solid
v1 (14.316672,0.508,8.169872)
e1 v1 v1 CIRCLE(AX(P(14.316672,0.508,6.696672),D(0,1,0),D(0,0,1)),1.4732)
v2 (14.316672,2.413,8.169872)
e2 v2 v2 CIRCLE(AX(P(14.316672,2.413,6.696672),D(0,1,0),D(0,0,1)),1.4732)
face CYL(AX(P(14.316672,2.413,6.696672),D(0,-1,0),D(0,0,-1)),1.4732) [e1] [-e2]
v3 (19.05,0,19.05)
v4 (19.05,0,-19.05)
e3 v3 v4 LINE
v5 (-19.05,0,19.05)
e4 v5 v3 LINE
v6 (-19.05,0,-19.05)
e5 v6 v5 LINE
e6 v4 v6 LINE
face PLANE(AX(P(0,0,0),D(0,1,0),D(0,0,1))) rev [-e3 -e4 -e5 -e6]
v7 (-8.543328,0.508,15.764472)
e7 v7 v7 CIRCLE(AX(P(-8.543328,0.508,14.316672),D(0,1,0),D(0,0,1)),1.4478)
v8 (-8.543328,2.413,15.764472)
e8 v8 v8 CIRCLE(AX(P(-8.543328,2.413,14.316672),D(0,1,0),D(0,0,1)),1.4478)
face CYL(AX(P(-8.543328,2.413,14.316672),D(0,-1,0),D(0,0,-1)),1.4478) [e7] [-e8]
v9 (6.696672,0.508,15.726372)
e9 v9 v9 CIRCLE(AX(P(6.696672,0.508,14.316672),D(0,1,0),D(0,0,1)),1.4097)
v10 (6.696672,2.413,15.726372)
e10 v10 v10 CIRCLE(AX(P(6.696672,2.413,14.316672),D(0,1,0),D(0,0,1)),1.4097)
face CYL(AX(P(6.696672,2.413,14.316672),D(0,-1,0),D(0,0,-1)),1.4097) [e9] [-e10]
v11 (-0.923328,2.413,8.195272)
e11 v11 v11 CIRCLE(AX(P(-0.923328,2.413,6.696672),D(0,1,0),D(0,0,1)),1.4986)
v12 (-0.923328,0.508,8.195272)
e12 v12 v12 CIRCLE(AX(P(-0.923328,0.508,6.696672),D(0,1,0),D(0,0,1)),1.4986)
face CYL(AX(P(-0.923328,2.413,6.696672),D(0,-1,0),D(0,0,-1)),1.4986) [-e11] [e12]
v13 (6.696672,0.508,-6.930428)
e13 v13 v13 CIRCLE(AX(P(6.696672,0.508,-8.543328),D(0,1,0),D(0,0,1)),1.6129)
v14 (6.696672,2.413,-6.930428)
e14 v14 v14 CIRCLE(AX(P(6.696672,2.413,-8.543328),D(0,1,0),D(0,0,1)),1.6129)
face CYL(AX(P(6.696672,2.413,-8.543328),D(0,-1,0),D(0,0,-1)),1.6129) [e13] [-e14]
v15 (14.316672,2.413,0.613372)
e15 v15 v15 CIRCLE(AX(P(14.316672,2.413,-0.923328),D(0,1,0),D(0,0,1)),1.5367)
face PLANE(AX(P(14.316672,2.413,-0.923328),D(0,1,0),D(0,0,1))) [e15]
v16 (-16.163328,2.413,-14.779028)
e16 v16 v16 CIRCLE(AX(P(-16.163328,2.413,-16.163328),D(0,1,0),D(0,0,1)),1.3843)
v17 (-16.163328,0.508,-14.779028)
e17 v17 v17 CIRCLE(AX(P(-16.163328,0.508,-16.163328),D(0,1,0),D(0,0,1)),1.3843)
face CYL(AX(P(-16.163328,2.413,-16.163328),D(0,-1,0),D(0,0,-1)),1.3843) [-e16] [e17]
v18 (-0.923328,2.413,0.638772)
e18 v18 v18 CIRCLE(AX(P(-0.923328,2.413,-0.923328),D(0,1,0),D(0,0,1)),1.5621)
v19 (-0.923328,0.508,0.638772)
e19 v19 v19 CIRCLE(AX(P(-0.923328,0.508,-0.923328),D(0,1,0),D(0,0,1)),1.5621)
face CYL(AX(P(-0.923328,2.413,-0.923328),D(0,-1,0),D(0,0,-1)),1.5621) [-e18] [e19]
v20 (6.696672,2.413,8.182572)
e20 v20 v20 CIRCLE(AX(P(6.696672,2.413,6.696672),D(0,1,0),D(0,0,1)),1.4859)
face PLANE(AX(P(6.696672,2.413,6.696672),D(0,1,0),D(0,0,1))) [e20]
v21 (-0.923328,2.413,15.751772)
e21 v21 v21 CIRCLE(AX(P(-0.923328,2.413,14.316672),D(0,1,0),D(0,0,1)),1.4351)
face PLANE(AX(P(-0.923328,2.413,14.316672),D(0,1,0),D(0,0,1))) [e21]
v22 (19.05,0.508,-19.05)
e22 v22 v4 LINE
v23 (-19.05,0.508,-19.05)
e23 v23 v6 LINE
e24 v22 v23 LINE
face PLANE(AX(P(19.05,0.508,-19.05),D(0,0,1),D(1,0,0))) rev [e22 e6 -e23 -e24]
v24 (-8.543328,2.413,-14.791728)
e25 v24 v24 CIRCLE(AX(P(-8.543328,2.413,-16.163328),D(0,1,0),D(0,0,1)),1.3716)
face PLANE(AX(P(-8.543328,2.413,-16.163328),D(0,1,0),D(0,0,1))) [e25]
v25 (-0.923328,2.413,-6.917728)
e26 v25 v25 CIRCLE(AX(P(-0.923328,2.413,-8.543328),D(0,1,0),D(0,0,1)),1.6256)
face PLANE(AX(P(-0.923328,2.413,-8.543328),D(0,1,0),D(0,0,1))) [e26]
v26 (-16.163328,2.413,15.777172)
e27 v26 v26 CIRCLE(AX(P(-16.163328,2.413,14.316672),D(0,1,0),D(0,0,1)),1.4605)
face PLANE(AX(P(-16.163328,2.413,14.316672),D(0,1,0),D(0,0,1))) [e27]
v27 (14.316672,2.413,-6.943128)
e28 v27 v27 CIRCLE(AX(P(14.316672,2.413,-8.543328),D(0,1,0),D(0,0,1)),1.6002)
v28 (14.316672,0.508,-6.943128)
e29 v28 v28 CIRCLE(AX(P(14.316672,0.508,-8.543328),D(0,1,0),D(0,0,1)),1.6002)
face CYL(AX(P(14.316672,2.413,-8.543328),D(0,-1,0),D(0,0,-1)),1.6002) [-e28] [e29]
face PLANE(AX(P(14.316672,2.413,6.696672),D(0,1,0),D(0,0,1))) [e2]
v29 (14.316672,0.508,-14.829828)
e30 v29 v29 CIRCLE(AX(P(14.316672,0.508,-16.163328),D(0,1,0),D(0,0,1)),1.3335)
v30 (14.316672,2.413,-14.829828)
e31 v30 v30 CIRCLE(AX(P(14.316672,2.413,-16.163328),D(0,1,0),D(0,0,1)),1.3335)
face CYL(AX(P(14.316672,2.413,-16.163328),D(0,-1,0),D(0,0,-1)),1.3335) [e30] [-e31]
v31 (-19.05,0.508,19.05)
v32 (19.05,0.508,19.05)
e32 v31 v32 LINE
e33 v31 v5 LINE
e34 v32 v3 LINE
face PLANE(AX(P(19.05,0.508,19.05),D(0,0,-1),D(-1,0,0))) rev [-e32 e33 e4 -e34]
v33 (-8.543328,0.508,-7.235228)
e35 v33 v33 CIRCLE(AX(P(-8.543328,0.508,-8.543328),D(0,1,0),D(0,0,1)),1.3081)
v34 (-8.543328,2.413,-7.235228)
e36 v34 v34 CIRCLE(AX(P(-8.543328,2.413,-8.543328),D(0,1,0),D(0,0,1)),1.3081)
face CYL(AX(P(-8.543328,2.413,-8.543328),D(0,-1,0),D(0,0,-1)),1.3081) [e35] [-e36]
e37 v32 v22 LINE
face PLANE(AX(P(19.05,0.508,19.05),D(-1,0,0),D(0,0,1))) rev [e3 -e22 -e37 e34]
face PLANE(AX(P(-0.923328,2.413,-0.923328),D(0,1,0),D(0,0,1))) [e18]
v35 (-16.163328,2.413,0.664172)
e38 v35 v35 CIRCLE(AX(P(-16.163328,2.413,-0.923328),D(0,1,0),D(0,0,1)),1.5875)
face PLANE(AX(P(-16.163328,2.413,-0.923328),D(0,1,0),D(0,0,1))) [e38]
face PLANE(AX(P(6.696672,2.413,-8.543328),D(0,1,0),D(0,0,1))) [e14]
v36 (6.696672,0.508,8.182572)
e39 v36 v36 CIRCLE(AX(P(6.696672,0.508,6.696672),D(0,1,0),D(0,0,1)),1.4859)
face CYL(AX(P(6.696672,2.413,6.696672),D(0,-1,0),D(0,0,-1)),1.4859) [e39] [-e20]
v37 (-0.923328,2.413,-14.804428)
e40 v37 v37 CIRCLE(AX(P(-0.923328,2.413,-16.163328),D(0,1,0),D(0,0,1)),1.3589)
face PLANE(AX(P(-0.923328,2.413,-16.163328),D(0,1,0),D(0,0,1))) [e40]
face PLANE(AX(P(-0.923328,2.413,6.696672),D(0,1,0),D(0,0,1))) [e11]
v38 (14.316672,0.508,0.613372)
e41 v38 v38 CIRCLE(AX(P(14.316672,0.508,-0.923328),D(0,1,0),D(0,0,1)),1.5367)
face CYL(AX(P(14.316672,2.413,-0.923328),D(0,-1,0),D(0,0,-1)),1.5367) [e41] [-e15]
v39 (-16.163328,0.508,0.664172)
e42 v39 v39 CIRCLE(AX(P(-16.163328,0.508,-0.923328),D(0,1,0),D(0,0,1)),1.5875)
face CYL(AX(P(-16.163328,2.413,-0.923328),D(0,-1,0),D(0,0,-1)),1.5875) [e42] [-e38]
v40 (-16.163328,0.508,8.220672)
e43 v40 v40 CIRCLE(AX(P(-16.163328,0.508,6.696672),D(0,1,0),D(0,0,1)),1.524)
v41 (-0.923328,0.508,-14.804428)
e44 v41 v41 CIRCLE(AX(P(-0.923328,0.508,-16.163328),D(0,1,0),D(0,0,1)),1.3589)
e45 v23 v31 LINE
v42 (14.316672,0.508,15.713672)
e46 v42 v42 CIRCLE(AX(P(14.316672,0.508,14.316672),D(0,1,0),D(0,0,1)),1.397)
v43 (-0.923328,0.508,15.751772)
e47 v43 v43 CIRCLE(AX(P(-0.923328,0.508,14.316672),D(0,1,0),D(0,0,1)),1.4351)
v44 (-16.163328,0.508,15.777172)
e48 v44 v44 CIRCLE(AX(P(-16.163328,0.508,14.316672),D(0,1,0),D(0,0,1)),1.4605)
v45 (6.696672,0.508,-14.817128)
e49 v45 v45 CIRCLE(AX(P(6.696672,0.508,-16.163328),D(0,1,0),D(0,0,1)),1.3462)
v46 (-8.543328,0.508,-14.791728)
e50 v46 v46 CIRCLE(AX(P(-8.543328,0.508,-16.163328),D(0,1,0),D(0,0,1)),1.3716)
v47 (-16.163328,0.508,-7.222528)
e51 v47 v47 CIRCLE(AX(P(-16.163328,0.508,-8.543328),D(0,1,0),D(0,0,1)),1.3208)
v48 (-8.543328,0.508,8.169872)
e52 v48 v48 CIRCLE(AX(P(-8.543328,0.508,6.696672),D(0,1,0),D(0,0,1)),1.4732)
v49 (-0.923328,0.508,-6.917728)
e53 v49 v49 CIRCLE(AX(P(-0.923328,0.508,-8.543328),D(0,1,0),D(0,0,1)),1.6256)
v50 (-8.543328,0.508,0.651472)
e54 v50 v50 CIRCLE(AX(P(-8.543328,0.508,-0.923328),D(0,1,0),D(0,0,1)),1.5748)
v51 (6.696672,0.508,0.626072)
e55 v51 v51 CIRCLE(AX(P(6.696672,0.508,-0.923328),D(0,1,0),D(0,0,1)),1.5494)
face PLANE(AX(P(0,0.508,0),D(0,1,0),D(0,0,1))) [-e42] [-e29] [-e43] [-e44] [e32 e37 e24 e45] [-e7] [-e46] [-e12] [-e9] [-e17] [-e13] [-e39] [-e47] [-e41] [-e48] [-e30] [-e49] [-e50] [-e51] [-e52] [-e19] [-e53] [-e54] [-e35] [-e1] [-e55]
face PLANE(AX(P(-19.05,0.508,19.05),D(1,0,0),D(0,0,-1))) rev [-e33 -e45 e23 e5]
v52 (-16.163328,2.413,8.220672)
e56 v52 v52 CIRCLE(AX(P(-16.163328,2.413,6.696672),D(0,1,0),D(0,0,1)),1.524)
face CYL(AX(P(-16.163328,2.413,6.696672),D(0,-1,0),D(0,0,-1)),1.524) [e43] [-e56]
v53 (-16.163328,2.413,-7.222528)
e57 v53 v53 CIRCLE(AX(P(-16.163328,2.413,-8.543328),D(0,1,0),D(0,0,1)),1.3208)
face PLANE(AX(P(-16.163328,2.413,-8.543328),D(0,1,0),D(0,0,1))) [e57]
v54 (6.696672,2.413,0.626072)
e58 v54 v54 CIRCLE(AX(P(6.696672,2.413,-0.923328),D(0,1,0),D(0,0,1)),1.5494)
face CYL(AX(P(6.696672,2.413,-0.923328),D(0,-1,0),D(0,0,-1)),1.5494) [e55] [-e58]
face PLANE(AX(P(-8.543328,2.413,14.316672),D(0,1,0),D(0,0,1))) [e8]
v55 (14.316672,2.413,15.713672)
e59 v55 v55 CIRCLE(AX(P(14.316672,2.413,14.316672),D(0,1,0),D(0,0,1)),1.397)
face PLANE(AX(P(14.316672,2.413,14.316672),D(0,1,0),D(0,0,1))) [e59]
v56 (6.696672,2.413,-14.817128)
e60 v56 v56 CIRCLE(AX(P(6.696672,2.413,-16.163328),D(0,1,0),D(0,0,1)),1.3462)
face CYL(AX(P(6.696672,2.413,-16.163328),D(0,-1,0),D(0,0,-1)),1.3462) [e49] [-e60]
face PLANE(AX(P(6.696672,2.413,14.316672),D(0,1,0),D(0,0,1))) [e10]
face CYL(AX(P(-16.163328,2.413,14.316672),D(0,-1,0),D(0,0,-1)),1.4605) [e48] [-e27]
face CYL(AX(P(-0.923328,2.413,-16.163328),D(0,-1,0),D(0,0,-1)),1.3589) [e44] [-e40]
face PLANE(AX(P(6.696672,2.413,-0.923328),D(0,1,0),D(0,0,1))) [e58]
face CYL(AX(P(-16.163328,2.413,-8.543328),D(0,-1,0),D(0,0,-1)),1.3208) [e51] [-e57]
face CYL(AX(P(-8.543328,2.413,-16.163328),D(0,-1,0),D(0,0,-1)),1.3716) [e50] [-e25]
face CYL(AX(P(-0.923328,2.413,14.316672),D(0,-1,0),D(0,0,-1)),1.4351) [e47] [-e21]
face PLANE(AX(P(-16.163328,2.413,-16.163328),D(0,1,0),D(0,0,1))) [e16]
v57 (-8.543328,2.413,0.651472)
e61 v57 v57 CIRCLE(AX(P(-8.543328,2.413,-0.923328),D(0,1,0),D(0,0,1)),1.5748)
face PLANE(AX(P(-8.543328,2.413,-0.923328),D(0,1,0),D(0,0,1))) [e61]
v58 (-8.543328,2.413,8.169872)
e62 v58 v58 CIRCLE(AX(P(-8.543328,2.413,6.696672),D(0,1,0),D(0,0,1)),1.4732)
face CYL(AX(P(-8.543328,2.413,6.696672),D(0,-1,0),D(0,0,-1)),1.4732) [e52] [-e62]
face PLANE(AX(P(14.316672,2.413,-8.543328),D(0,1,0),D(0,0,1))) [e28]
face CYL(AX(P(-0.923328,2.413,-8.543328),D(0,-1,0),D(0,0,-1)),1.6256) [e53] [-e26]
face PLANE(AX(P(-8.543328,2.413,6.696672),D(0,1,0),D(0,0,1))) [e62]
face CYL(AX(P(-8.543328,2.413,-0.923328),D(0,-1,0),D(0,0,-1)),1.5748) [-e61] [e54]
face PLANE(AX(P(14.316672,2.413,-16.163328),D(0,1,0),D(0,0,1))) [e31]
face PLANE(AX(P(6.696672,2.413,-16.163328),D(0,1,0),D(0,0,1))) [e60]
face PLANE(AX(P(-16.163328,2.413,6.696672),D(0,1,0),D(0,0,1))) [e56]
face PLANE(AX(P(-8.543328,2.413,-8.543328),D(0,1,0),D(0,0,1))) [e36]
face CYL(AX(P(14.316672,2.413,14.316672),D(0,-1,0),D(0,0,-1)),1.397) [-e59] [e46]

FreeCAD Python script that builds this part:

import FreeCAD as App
import Part
import Sketcher
from FreeCAD import Vector
Q = App.Units.Quantity

doc = App.newDocument("Part")
body = doc.addObject("PartDesign::Body", "Body")

sketch1 = body.newObject("Sketcher::SketchObject", "Sketch")
sketch1.AttachmentSupport = (doc.getObject("XZ_Plane"), [""])
sketch1.MapMode = "FlatFace"
sketch1.addGeometry(Part.LineSegment(Vector(-19, -19, 0), Vector(-19, 19, 0)), False)
sketch1.addGeometry(Part.LineSegment(Vector(-19, 19, 0), Vector(19, 19, 0)), False)
sketch1.addGeometry(Part.LineSegment(Vector(19, 19, 0), Vector(19, -19, 0)), False)
sketch1.addGeometry(Part.LineSegment(Vector(19, -19, 0), Vector(-19, -19, 0)), False)
sketch1.addConstraint(Sketcher.Constraint("Coincident", 0, 2, 1, 1))
sketch1.addConstraint(Sketcher.Constraint("Coincident", 1, 2, 2, 1))
sketch1.addConstraint(Sketcher.Constraint("Coincident", 2, 2, 3, 1))
sketch1.addConstraint(Sketcher.Constraint("Coincident", 3, 2, 0, 1))
sketch1.addConstraint(Sketcher.Constraint("Vertical", 0))
sketch1.addConstraint(Sketcher.Constraint("Horizontal", 1))
sketch1.addConstraint(Sketcher.Constraint("Vertical", 2))
sketch1.addConstraint(Sketcher.Constraint("Horizontal", 3))
sketch1.addConstraint(Sketcher.Constraint("Symmetric", 0, 2, 2, 2, -1, 1))
sketch1.addConstraint(Sketcher.Constraint("Equal", 3, 0))
sketch1.addConstraint(Sketcher.Constraint("DistanceX", 1, 1, 1, 2, Q("1.5 in")))
pad1 = body.newObject("PartDesign::Pad", "Pad")
pad1.Profile = sketch1
pad1.Length = Q("0.02 in")
pad1.Reversed = True

sketch2 = body.newObject("Sketcher::SketchObject", "Sketch001")
sketch2.AttachmentSupport = (doc.getObject("XZ_Plane"), [""])
sketch2.MapMode = "FlatFace"
sketch2.AttachmentOffset = App.Placement(Vector(0, 0, -0.02 * 25.4), App.Rotation())
sketch2.addGeometry(Part.Circle(Vector(-16.2, -16.2, 0), Vector(0, 0, 1), 1.4), False)
sketch2.addGeometry(Part.Circle(Vector(-8.5, -16.2, 0), Vector(0, 0, 1), 1.4), False)
sketch2.addGeometry(Part.Circle(Vector(-0.9, -16.2, 0), Vector(0, 0, 1), 1.4), False)
sketch2.addGeometry(Part.Circle(Vector(6.7, -16.2, 0), Vector(0, 0, 1), 1.3), False)
sketch2.addGeometry(Part.Circle(Vector(14.3, -16.2, 0), Vector(0, 0, 1), 1.3), False)
sketch2.addGeometry(Part.Circle(Vector(-8.5, -8.5, 0), Vector(0, 0, 1), 1.3), False)
sketch2.addGeometry(Part.Circle(Vector(-0.9, -8.5, 0), Vector(0, 0, 1), 1.6), False)
sketch2.addGeometry(Part.Circle(Vector(6.7, -8.5, 0), Vector(0, 0, 1), 1.6), False)
sketch2.addGeometry(Part.Circle(Vector(14.3, -8.5, 0), Vector(0, 0, 1), 1.6), False)
sketch2.addGeometry(Part.Circle(Vector(-8.5, -0.9, 0), Vector(0, 0, 1), 1.6), False)
sketch2.addGeometry(Part.Circle(Vector(-0.9, -0.9, 0), Vector(0, 0, 1), 1.6), False)
sketch2.addGeometry(Part.Circle(Vector(6.7, -0.9, 0), Vector(0, 0, 1), 1.5), False)
sketch2.addGeometry(Part.Circle(Vector(14.3, -0.9, 0), Vector(0, 0, 1), 1.5), False)
sketch2.addGeometry(Part.Circle(Vector(-8.5, 6.7, 0), Vector(0, 0, 1), 1.5), False)
sketch2.addGeometry(Part.Circle(Vector(-0.9, 6.7, 0), Vector(0, 0, 1), 1.5), False)
sketch2.addGeometry(Part.Circle(Vector(6.7, 6.7, 0), Vector(0, 0, 1), 1.5), False)
sketch2.addGeometry(Part.Circle(Vector(14.3, 6.7, 0), Vector(0, 0, 1), 1.5), False)
sketch2.addGeometry(Part.Circle(Vector(-8.5, 14.3, 0), Vector(0, 0, 1), 1.4), False)
sketch2.addGeometry(Part.Circle(Vector(-0.9, 14.3, 0), Vector(0, 0, 1), 1.4), False)
sketch2.addGeometry(Part.Circle(Vector(6.7, 14.3, 0), Vector(0, 0, 1), 1.4), False)
sketch2.addGeometry(Part.Circle(Vector(14.3, 14.3, 0), Vector(0, 0, 1), 1.4), False)
sketch2.addGeometry(Part.Circle(Vector(-16.2, -8.5, 0), Vector(0, 0, 1), 1.3), False)
sketch2.addGeometry(Part.Circle(Vector(-16.2, -0.9, 0), Vector(0, 0, 1), 1.6), False)
sketch2.addGeometry(Part.Circle(Vector(-16.2, 6.7, 0), Vector(0, 0, 1), 1.5), False)
sketch2.addGeometry(Part.Circle(Vector(-16.2, 14.3, 0), Vector(0, 0, 1), 1.5), False)
sketch2.addConstraint(Sketcher.Constraint("Equal", 13, 16))
sketch2.addConstraint(Sketcher.Constraint("Horizontal", 0, 3, 1, 3))
sketch2.addConstraint(Sketcher.Constraint("Horizontal", 1, 3, 2, 3))
sketch2.addConstraint(Sketcher.Constraint("Horizontal", 2, 3, 3, 3))
sketch2.addConstraint(Sketcher.Constraint("Horizontal", 3, 3, 4, 3))
sketch2.addConstraint(Sketcher.Constraint("Horizontal", 5, 3, 6, 3))
sketch2.addConstraint(Sketcher.Constraint("Horizontal", 6, 3, 7, 3))
sketch2.addConstraint(Sketcher.Constraint("Horizontal", 7, 3, 8, 3))
sketch2.addConstraint(Sketcher.Constraint("Horizontal", 9, 3, 10, 3))
sketch2.addConstraint(Sketcher.Constraint("Horizontal", 10, 3, 11, 3))
sketch2.addConstraint(Sketcher.Constraint("Horizontal", 11, 3, 12, 3))
sketch2.addConstraint(Sketcher.Constraint("Horizontal", 13, 3, 14, 3))
sketch2.addConstraint(Sketcher.Constraint("Horizontal", 14, 3, 15, 3))
sketch2.addConstraint(Sketcher.Constraint("Horizontal", 15, 3, 16, 3))
sketch2.addConstraint(Sketcher.Constraint("Horizontal", 17, 3, 18, 3))
sketch2.addConstraint(Sketcher.Constraint("Horizontal", 18, 3, 19, 3))
sketch2.addConstraint(Sketcher.Constraint("Horizontal", 19, 3, 20, 3))
sketch2.addConstraint(Sketcher.Constraint("Horizontal", 8, 3, 21, 3))
sketch2.addConstraint(Sketcher.Constraint("Horizontal", 12, 3, 22, 3))
sketch2.addConstraint(Sketcher.Constraint("Horizontal", 16, 3, 23, 3))
sketch2.addConstraint(Sketcher.Constraint("Horizontal", 20, 3, 24, 3))
sketch2.addConstraint(Sketcher.Constraint("Vertical", 1, 3, 5, 3))
sketch2.addConstraint(Sketcher.Constraint("Vertical", 2, 3, 6, 3))
sketch2.addConstraint(Sketcher.Constraint("Vertical", 3, 3, 7, 3))
sketch2.addConstraint(Sketcher.Constraint("Vertical", 4, 3, 8, 3))
sketch2.addConstraint(Sketcher.Constraint("Vertical", 5, 3, 9, 3))
sketch2.addConstraint(Sketcher.Constraint("Vertical", 6, 3, 10, 3))
sketch2.addConstraint(Sketcher.Constraint("Vertical", 7, 3, 11, 3))
sketch2.addConstraint(Sketcher.Constraint("Vertical", 8, 3, 12, 3))
sketch2.addConstraint(Sketcher.Constraint("Vertical", 9, 3, 13, 3))
sketch2.addConstraint(Sketcher.Constraint("Vertical", 10, 3, 14, 3))
sketch2.addConstraint(Sketcher.Constraint("Vertical", 11, 3, 15, 3))
sketch2.addConstraint(Sketcher.Constraint("Vertical", 12, 3, 16, 3))
sketch2.addConstraint(Sketcher.Constraint("Vertical", 13, 3, 17, 3))
sketch2.addConstraint(Sketcher.Constraint("Vertical", 14, 3, 18, 3))
sketch2.addConstraint(Sketcher.Constraint("Vertical", 15, 3, 19, 3))
sketch2.addConstraint(Sketcher.Constraint("Vertical", 16, 3, 20, 3))
sketch2.addConstraint(Sketcher.Constraint("Vertical", 0, 3, 21, 3))
sketch2.addConstraint(Sketcher.Constraint("Vertical", 21, 3, 22, 3))
sketch2.addConstraint(Sketcher.Constraint("Vertical", 22, 3, 23, 3))
sketch2.addConstraint(Sketcher.Constraint("Vertical", 23, 3, 24, 3))
sketch2.addConstraint(Sketcher.Constraint("Diameter", 20, Q("0.11 in")))
sketch2.addConstraint(Sketcher.Constraint("Diameter", 23, Q("0.12 in")))
sketch2.addConstraint(Sketcher.Constraint("Diameter", 0, Q("0.109 in")))
sketch2.addConstraint(Sketcher.Constraint("Diameter", 1, Q("0.108 in")))
sketch2.addConstraint(Sketcher.Constraint("Diameter", 2, Q("0.107 in")))
sketch2.addConstraint(Sketcher.Constraint("Diameter", 3, Q("0.106 in")))
sketch2.addConstraint(Sketcher.Constraint("Diameter", 4, Q("0.105 in")))
sketch2.addConstraint(Sketcher.Constraint("Diameter", 5, Q("0.103 in")))
sketch2.addConstraint(Sketcher.Constraint("Diameter", 6, Q("0.128 in")))
sketch2.addConstraint(Sketcher.Constraint("Diameter", 7, Q("0.127 in")))
sketch2.addConstraint(Sketcher.Constraint("Diameter", 8, Q("0.126 in")))
sketch2.addConstraint(Sketcher.Constraint("Diameter", 9, Q("0.124 in")))
sketch2.addConstraint(Sketcher.Constraint("Diameter", 10, Q("0.123 in")))
sketch2.addConstraint(Sketcher.Constraint("Diameter", 11, Q("0.122 in")))
sketch2.addConstraint(Sketcher.Constraint("Diameter", 12, Q("0.121 in")))
sketch2.addConstraint(Sketcher.Constraint("Diameter", 13, Q("0.116 in")))
sketch2.addConstraint(Sketcher.Constraint("Diameter", 14, Q("0.118 in")))
sketch2.addConstraint(Sketcher.Constraint("Diameter", 15, Q("0.117 in")))
sketch2.addConstraint(Sketcher.Constraint("Diameter", 17, Q("0.114 in")))
sketch2.addConstraint(Sketcher.Constraint("Diameter", 18, Q("0.113 in")))
sketch2.addConstraint(Sketcher.Constraint("Diameter", 19, Q("0.111 in")))
sketch2.addConstraint(Sketcher.Constraint("Diameter", 21, Q("0.104 in")))
sketch2.addConstraint(Sketcher.Constraint("Diameter", 22, Q("0.125 in")))
sketch2.addConstraint(Sketcher.Constraint("Diameter", 24, Q("0.115 in")))
sketch2.addConstraint(Sketcher.Constraint("DistanceX", 0, 3, 1, 3, Q("0.3 in")))
sketch2.addConstraint(Sketcher.Constraint("DistanceX", 1, 3, 2, 3, Q("0.3 in")))
sketch2.addConstraint(Sketcher.Constraint("DistanceX", 2, 3, 3, 3, Q("0.3 in")))
sketch2.addConstraint(Sketcher.Constraint("DistanceX", 3, 3, 4, 3, Q("0.3 in")))
sketch2.addConstraint(Sketcher.Constraint("DistanceY", 1, 3, 5, 3, Q("0.3 in")))
sketch2.addConstraint(Sketcher.Constraint("DistanceY", 5, 3, 9, 3, Q("0.3 in")))
sketch2.addConstraint(Sketcher.Constraint("DistanceY", 9, 3, 13, 3, Q("0.3 in")))
sketch2.addConstraint(Sketcher.Constraint("DistanceY", 13, 3, 17, 3, Q("0.3 in")))
sketch2.addConstraint(Sketcher.Constraint("DistanceX", 0, 3, -1, 1, 16.163328))
sketch2.addConstraint(Sketcher.Constraint("DistanceY", 0, 3, -1, 1, 16.163328))
pad2 = body.newObject("PartDesign::Pad", "Pad001")
pad2.Profile = sketch2
pad2.Length = Q("0.075 in")
pad2.Reversed = True

doc.recompute()
